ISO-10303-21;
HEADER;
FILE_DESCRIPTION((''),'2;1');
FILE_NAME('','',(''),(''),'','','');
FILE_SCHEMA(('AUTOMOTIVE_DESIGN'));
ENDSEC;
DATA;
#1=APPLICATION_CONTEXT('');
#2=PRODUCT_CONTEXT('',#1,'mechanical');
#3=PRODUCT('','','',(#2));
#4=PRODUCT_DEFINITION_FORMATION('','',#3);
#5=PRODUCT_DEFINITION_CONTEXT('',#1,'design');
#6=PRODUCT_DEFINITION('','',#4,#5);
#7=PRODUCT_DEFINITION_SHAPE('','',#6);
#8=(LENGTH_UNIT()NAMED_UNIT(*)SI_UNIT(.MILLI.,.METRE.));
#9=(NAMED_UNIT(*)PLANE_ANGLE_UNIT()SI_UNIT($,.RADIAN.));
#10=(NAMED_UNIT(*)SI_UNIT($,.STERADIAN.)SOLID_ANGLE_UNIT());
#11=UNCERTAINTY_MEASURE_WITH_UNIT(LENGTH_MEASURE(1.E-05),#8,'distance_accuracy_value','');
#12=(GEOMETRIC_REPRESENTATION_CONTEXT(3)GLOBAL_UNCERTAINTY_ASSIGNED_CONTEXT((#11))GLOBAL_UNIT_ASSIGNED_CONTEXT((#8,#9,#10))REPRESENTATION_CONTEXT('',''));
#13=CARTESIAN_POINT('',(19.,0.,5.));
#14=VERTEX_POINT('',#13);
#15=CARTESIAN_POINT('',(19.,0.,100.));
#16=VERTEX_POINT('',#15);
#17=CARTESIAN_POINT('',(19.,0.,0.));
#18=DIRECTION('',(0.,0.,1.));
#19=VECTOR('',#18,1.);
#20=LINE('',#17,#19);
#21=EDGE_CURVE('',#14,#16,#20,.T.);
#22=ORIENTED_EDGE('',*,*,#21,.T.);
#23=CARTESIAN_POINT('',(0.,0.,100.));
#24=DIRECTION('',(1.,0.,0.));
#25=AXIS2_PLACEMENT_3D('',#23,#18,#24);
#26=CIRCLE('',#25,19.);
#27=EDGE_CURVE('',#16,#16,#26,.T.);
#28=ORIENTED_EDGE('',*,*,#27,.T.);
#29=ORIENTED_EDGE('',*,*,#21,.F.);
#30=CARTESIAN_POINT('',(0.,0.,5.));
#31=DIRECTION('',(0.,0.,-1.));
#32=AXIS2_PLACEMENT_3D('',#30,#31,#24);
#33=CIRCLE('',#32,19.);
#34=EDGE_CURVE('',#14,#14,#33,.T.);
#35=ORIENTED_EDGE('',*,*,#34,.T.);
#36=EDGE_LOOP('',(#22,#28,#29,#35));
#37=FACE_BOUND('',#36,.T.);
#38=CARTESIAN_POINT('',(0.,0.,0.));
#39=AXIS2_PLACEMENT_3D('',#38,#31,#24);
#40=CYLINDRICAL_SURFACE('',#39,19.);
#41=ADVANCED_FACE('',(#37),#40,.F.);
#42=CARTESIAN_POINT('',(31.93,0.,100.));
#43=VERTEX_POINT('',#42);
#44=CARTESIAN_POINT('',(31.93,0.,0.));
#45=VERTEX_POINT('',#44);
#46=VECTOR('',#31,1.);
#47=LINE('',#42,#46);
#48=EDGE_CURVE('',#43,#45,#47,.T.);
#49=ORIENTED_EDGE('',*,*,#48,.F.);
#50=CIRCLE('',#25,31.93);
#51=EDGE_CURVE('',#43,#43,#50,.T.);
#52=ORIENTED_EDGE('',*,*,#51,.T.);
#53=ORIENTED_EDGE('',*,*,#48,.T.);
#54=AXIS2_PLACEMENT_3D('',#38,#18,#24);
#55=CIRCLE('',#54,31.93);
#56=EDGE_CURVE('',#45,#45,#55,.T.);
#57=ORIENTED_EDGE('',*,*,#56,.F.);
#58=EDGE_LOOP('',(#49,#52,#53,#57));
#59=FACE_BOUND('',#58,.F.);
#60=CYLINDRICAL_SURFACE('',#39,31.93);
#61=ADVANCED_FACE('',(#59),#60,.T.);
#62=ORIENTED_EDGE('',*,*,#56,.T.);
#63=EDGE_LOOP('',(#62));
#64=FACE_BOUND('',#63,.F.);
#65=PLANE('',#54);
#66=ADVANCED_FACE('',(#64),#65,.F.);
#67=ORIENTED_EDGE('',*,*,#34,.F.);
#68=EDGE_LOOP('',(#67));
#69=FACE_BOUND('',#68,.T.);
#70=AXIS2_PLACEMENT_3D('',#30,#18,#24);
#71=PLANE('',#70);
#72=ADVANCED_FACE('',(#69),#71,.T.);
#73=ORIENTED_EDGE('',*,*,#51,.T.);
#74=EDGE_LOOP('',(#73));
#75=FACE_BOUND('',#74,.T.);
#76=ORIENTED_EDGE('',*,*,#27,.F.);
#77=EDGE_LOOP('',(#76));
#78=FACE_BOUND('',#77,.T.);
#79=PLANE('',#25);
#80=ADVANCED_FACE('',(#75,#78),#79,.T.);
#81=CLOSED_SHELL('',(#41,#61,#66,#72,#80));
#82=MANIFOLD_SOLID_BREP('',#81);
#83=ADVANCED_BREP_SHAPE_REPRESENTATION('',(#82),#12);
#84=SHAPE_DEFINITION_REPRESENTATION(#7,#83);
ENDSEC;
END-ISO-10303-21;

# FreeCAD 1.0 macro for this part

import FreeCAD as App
import Part
import Sketcher

doc = App.newDocument("Part")
body = doc.addObject("PartDesign::Body", "Body")

# Sketch on XY plane
sketch1 = doc.addObject("Sketcher::SketchObject", "Sketch")
body.addObject(sketch1)
sketch1.AttachmentSupport = (doc.XY_Plane, [""])
sketch1.MapMode = "FlatFace"
sketch1.addGeometry(Part.Circle(App.Vector(0, 0, 0), App.Vector(0, 0, 1), 31.93), False)
sketch1.addGeometry(Part.Circle(App.Vector(0, 0, 0), App.Vector(0, 0, 1), 19), False)
sketch1.addConstraint(Sketcher.Constraint("Coincident", 0, 3, -1, 1))
sketch1.addConstraint(Sketcher.Constraint("Coincident", 1, 3, -1, 1))
sketch1.addConstraint(Sketcher.Constraint("Diameter", 1, 38.0))
sketch1.addConstraint(Sketcher.Constraint("Diameter", 0, 63.86))
pad1 = doc.addObject("PartDesign::Pad", "Pad")
body.addObject(pad1)
pad1.Profile = sketch1
pad1.Length = 100

# Sketch on XY plane
sketch2 = doc.addObject("Sketcher::SketchObject", "Sketch001")
body.addObject(sketch2)
sketch2.AttachmentSupport = (doc.XY_Plane, [""])
sketch2.MapMode = "FlatFace"
sketch2.addGeometry(Part.Circle(App.Vector(0, 0, 0), App.Vector(0, 0, 1), 31.93), False)
sketch2.addConstraint(Sketcher.Constraint("Coincident", 0, 3, -1, 1))
sketch2.addConstraint(Sketcher.Constraint("Diameter", 0, 63.86))
pad2 = doc.addObject("PartDesign::Pad", "Pad001")
body.addObject(pad2)
pad2.Profile = sketch2
pad2.Length = 5

doc.recompute()
